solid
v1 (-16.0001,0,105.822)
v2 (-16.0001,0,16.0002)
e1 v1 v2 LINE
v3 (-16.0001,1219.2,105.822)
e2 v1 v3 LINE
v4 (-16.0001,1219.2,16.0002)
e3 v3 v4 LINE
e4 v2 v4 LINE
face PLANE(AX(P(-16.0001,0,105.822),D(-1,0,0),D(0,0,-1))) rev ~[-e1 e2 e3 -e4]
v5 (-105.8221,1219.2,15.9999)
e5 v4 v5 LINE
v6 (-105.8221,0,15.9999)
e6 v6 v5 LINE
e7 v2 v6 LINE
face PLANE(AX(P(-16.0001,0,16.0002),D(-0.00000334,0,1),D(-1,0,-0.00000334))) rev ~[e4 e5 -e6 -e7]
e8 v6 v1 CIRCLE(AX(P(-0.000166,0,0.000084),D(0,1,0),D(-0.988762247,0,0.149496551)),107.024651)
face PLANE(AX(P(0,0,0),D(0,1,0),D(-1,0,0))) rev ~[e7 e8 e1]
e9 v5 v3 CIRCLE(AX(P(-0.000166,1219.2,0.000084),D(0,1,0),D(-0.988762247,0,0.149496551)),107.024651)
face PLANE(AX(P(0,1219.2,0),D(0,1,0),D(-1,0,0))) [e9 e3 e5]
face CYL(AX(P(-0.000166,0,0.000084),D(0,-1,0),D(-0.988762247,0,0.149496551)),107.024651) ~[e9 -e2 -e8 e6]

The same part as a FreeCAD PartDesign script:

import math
import FreeCAD as App
import Part
import Sketcher
Q = App.Units.Quantity

doc = App.newDocument("Part")
body = doc.addObject("PartDesign::Body", "Body")

sketch1 = doc.addObject("Sketcher::SketchObject", "Sketch")
body.addObject(sketch1)
sketch1.AttachmentSupport = (doc.XZ_Plane, [""])
sketch1.MapMode = "FlatFace"
sketch1.addGeometry(Part.LineSegment(App.Vector(-16.0001, 16.0002, 0), App.Vector(-105.8221, 15.9999, 0)), False)
sketch1.addGeometry(Part.ArcOfCircle(Part.Circle(App.Vector(0, 0, 0), App.Vector(0, 0, 1), 107.024827), math.radians(98.597897), math.radians(171.402217)), False)
sketch1.addGeometry(Part.LineSegment(App.Vector(-16.0001, 105.822, 0), App.Vector(-16.0001, 16.0002, 0)), False)
sketch1.addConstraint(Sketcher.Constraint("Coincident", 0, 2, 1, 2))
sketch1.addConstraint(Sketcher.Constraint("Coincident", 1, 1, 2, 1))
sketch1.addConstraint(Sketcher.Constraint("Coincident", 2, 2, 0, 1))
sketch1.addConstraint(Sketcher.Constraint("Vertical", 2))
sketch1.addConstraint(Sketcher.Constraint("Coincident", 1, 3, -1, 1))
sketch1.addConstraint(Sketcher.Constraint("Angle", 0, Q("-179.9998 deg")))
sketch1.addConstraint(Sketcher.Constraint("Radius", 1, Q("107.0248 mm")))
sketch1.addConstraint(Sketcher.Constraint("DistanceY", 2, 2, 2, 1, Q("3.5363 in")))
sketch1.addConstraint(Sketcher.Constraint("Distance", 0, Q("3.5363 in")))
pad1 = doc.addObject("PartDesign::Pad", "Pad")
body.addObject(pad1)
pad1.Profile = sketch1
pad1.Length = Q("48 in")
pad1.Reversed = True

doc.recompute()
